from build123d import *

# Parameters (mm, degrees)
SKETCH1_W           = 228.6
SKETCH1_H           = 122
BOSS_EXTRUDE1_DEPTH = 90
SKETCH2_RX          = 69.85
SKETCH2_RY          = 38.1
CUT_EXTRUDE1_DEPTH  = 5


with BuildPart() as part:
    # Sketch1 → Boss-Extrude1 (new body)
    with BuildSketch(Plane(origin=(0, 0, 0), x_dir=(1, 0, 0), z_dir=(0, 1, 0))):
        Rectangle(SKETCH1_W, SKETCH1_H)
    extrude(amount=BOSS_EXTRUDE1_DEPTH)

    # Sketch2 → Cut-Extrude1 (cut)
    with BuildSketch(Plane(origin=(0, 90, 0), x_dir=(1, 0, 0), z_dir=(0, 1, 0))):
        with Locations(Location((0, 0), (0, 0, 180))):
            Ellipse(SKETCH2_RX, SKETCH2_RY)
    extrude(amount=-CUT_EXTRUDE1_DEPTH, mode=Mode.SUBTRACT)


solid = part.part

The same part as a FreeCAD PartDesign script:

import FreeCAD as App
import Part
import Sketcher
from FreeCAD import Vector
Q = App.Units.Quantity

doc = App.newDocument("Part")
body = doc.addObject("PartDesign::Body", "Body")

sketch1 = body.newObject("Sketcher::SketchObject", "Sketch")
sketch1.AttachmentSupport = (doc.getObject("XZ_Plane"), [""])
sketch1.MapMode = "FlatFace"
sketch1.addGeometry([
    Part.LineSegment(Vector(-114, -61, 0), Vector(-114, 61, 0)),
    Part.LineSegment(Vector(-114, 61, 0), Vector(114, 61, 0)),
    Part.LineSegment(Vector(114, 61, 0), Vector(114, -61, 0)),
    Part.LineSegment(Vector(114, -61, 0), Vector(-114, -61, 0)),
], False)
sketch1.addConstraint([
    Sketcher.Constraint("Coincident", 0, 2, 1, 1),
    Sketcher.Constraint("Coincident", 1, 2, 2, 1),
    Sketcher.Constraint("Coincident", 2, 2, 3, 1),
    Sketcher.Constraint("Coincident", 3, 2, 0, 1),
    Sketcher.Constraint("Vertical", 0),
    Sketcher.Constraint("Horizontal", 1),
    Sketcher.Constraint("Vertical", 2),
    Sketcher.Constraint("Horizontal", 3),
    Sketcher.Constraint("Symmetric", 0, 2, 2, 2, -1, 1),
    Sketcher.Constraint("DistanceY", 0, 1, 0, 2, Q("122 mm")),
    Sketcher.Constraint("DistanceX", 1, 1, 1, 2, Q("228.6 mm")),
])
pad1 = body.newObject("PartDesign::Pad", "Pad")
pad1.Profile = sketch1
pad1.Length = 90
pad1.Reversed = True

sketch2 = body.newObject("Sketcher::SketchObject", "Sketch001")
sketch2.AttachmentSupport = (doc.getObject("XZ_Plane"), [""])
sketch2.MapMode = "FlatFace"
sketch2.AttachmentOffset = App.Placement(Vector(0, 0, -90), App.Rotation())
sketch2.addGeometry(Part.Ellipse(Vector(-69.85, 0, 0), Vector(0, -38.1, 0), Vector(0, 0, 0)), False)
sketch2.addConstraint(Sketcher.Constraint("Block", 0))
pocket1 = body.newObject("PartDesign::Pocket", "Pocket")
pocket1.Profile = sketch2
pocket1.Length = 5
pocket1.Reversed = True

doc.recompute()
